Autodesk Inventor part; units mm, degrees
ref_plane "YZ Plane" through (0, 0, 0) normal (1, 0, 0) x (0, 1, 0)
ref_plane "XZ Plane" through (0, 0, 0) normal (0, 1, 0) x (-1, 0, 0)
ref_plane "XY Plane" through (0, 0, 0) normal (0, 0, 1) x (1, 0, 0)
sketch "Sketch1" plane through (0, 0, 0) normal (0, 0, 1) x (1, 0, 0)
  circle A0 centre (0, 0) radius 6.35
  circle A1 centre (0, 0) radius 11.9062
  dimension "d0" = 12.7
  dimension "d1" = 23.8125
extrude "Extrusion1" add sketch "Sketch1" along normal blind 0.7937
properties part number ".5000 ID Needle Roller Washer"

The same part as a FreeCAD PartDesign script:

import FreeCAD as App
import Part
import Sketcher
from FreeCAD import Vector
Q = App.Units.Quantity

doc = App.newDocument("Part")
params = doc.addObject("Spreadsheet::Sheet", "Params")
for row, (alias, value) in enumerate([
    ("sketch1_diameter", "0.5 in"),
    ("sketch1_diameter2", "0.9375 in"),
    ("pad1_length", "0.031248 in"),
], start=1):
    params.set(f"A{row}", alias)
    params.set(f"B{row}", "=" + value)
    params.setAlias(f"B{row}", alias)

body = doc.addObject("PartDesign::Body", "Body")

# Sketch on XY plane
sketch1 = body.newObject("Sketcher::SketchObject", "Sketch")
sketch1.AttachmentSupport = (doc.getObject("XY_Plane"), [""])
sketch1.MapMode = "FlatFace"
sketch1.addGeometry([
    Part.Circle(Vector(0, 0, 0), Vector(0, 0, 1), 12),
    Part.Circle(Vector(0, 0, 0), Vector(0, 0, 1), 6),
], False)
sketch1.addConstraint([
    Sketcher.Constraint("Coincident", 0, 3, -1, 1),
    Sketcher.Constraint("Coincident", 1, 3, -1, 1),
    Sketcher.Constraint("Diameter", 1, Q("0.5 in")),
    Sketcher.Constraint("Diameter", 0, Q("0.9375 in")),
])
sketch1.setExpression("Constraints[2]", "Params.sketch1_diameter")
sketch1.setExpression("Constraints[3]", "Params.sketch1_diameter2")
pad1 = body.newObject("PartDesign::Pad", "Pad")
pad1.Profile = sketch1
pad1.setExpression("Length", "Params.pad1_length")

doc.recompute()
